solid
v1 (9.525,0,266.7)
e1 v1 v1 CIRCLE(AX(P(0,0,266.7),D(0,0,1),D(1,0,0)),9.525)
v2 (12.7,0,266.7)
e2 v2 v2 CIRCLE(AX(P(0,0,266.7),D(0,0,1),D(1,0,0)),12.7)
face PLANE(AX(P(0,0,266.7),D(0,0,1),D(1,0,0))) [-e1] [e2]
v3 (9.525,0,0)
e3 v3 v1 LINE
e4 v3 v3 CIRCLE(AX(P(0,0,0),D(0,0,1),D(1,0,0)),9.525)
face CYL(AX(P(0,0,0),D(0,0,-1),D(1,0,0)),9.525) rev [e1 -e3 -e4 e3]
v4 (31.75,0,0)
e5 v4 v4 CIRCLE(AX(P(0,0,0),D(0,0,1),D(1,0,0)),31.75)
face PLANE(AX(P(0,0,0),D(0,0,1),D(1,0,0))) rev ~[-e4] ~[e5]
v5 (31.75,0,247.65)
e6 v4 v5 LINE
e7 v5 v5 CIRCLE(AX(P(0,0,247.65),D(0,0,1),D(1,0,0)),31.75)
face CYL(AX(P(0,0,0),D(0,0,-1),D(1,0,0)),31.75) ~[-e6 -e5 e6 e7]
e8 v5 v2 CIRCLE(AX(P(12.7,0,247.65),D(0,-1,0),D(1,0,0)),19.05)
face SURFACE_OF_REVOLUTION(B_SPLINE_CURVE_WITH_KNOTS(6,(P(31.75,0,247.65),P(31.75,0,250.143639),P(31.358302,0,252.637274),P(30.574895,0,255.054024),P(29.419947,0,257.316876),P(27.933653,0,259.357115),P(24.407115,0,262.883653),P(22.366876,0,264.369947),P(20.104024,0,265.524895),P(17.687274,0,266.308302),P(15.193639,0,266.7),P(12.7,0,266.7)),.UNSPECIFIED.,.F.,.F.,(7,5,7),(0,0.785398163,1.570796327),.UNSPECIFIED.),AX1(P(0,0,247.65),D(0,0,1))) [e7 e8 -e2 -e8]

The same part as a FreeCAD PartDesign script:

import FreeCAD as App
import Part
import Sketcher
Q = App.Units.Quantity


def edges_at(feature, points):
    """Names of the edges that pass closest to the given points."""
    edges = feature.Shape.Edges
    near = lambda p: min(range(len(edges)), key=lambda i: edges[i].distToShape(Part.Vertex(*p))[0])
    return sorted({f"Edge{near(p) + 1}" for p in points})

doc = App.newDocument("Part")
params = doc.addObject("Spreadsheet::Sheet", "Params")
for row, (alias, value) in enumerate([
    ("sketch1_diameter", "2.5 in"),
    ("sketch1_diameter2", "0.75 in"),
    ("pad1_length", "10.5 in"),
    ("fillet_radius", "0.75 in"),
], start=1):
    params.set(f"A{row}", alias)
    params.set(f"B{row}", "=" + value)
    params.setAlias(f"B{row}", alias)

body = doc.addObject("PartDesign::Body", "Body")

# Sketch on XY plane
sketch1 = body.newObject("Sketcher::SketchObject", "Sketch")
sketch1.AttachmentSupport = (doc.getObject("XY_Plane"), [""])
sketch1.MapMode = "FlatFace"
sketch1.addGeometry(Part.Circle(App.Vector(0, 0, 0), App.Vector(0, 0, 1), 32), False)
sketch1.addGeometry(Part.Circle(App.Vector(0, 0, 0), App.Vector(0, 0, 1), 10), False)
sketch1.addConstraint(Sketcher.Constraint("Coincident", 0, 3, -1, 1))
sketch1.addConstraint(Sketcher.Constraint("Coincident", 1, 3, -1, 1))
sketch1.addConstraint(Sketcher.Constraint("Diameter", 0, Q("2.5 in")))
sketch1.addConstraint(Sketcher.Constraint("Diameter", 1, Q("0.75 in")))
sketch1.setExpression("Constraints[2]", "Params.sketch1_diameter")
sketch1.setExpression("Constraints[3]", "Params.sketch1_diameter2")
pad1 = body.newObject("PartDesign::Pad", "Pad")
pad1.Profile = sketch1
pad1.setExpression("Length", "Params.pad1_length")
doc.recompute()

fillet = body.newObject("PartDesign::Fillet", "Fillet")
fillet.Base = (pad1, edges_at(pad1, [(-31.75, 0, 266.7)]))
fillet.setExpression("Radius", "Params.fillet_radius")

doc.recompute()
